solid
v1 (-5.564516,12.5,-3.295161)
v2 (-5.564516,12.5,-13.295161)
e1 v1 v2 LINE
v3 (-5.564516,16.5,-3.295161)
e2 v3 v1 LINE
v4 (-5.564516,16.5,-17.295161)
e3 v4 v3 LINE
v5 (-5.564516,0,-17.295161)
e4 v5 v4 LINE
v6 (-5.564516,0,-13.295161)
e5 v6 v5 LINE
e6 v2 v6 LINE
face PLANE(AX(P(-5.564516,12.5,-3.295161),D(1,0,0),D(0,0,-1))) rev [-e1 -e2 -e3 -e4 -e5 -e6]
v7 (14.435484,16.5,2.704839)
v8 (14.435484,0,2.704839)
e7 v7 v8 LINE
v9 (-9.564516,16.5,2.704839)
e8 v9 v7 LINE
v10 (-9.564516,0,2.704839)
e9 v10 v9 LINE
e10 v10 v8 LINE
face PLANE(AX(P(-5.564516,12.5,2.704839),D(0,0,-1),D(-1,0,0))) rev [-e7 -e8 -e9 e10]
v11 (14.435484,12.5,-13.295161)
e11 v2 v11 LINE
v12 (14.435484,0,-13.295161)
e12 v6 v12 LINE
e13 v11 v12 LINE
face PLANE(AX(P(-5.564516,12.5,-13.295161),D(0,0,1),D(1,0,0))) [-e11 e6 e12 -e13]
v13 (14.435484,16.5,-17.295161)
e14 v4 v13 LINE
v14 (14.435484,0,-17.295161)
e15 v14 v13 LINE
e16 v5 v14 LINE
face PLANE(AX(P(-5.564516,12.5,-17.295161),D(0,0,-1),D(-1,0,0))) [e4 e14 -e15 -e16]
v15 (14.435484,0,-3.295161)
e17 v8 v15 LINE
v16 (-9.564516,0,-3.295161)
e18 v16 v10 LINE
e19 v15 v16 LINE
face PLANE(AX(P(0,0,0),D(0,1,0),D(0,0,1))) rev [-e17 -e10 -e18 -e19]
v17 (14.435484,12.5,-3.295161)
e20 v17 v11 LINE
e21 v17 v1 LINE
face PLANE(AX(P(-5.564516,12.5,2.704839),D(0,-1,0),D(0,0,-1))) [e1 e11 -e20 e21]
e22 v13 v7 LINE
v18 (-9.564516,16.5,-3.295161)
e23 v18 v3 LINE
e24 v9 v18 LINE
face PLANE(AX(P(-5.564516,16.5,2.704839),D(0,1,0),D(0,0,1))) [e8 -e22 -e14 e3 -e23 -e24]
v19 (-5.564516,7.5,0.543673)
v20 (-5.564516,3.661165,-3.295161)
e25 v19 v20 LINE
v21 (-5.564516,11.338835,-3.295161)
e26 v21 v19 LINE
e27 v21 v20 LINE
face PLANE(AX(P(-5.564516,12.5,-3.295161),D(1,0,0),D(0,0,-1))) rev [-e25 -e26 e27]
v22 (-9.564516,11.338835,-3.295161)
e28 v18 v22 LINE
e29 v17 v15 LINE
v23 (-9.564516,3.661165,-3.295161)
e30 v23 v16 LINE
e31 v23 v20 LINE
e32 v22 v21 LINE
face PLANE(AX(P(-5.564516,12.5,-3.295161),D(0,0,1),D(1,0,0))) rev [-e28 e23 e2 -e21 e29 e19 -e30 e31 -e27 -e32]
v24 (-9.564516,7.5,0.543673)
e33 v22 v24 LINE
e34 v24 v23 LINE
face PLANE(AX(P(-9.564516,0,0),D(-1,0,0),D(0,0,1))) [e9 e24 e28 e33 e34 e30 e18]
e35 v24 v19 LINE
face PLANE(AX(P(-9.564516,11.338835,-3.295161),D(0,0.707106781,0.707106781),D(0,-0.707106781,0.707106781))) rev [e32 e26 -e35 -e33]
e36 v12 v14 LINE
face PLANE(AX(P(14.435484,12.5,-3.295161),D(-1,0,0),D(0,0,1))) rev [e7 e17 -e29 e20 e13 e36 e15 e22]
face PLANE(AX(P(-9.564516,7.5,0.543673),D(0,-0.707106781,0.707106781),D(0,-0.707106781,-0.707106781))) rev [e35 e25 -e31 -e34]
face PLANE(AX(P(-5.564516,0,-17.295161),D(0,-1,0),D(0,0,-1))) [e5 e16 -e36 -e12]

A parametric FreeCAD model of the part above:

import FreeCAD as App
import Part
import Sketcher

V = App.Vector

doc = App.newDocument("Part")
body = doc.addObject("PartDesign::Body", "Body")

# Sketch on XZ plane
sketch1 = body.newObject("Sketcher::SketchObject", "Sketch")
sketch1.AttachmentSupport = (doc.getObject("XZ_Plane"), [""])
sketch1.MapMode = "FlatFace"
sketch1.addGeometry(Part.LineSegment(V(14, -3, 0), V(-6, -3, 0)), False)
sketch1.addGeometry(Part.LineSegment(V(-6, -3, 0), V(-6, 3, 0)), False)
sketch1.addGeometry(Part.LineSegment(V(-6, 3, 0), V(14, 3, 0)), False)
sketch1.addGeometry(Part.LineSegment(V(14, 3, 0), V(14, -3, 0)), False)
sketch1.addConstraint(Sketcher.Constraint("Coincident", 0, 2, 1, 1))
sketch1.addConstraint(Sketcher.Constraint("Coincident", 1, 2, 2, 1))
sketch1.addConstraint(Sketcher.Constraint("Coincident", 2, 2, 3, 1))
sketch1.addConstraint(Sketcher.Constraint("Coincident", 3, 2, 0, 1))
sketch1.addConstraint(Sketcher.Constraint("Horizontal", 0))
sketch1.addConstraint(Sketcher.Constraint("Vertical", 1))
sketch1.addConstraint(Sketcher.Constraint("Horizontal", 2))
sketch1.addConstraint(Sketcher.Constraint("Vertical", 3))
sketch1.addConstraint(Sketcher.Constraint("DistanceX", 0, 2, 0, 1, 20.0))
sketch1.addConstraint(Sketcher.Constraint("DistanceY", 1, 1, 1, 2, 6.0))
sketch1.addConstraint(Sketcher.Constraint("DistanceY", 0, 2, -1, 1, 3.295161))
sketch1.addConstraint(Sketcher.Constraint("DistanceX", 0, 2, -1, 1, 5.564516))
pad1 = body.newObject("PartDesign::Pad", "Pad")
pad1.Profile = sketch1
pad1.Length = 12.5
pad1.Reversed = True

# Sketch on YZ plane
sketch2 = body.newObject("Sketcher::SketchObject", "Sketch001")
sketch2.AttachmentSupport = (doc.getObject("YZ_Plane"), [""])
sketch2.MapMode = "FlatFace"
sketch2.AttachmentOffset = App.Placement(V(0, 0, 14.435484), App.Rotation())
sketch2.addGeometry(Part.LineSegment(V(12.5, 2.7, 0), V(12.5, -13.3, 0)), False)
sketch2.addGeometry(Part.LineSegment(V(12.5, -13.3, 0), V(0, -13.3, 0)), False)
sketch2.addGeometry(Part.LineSegment(V(0, -13.3, 0), V(0, -17.3, 0)), False)
sketch2.addGeometry(Part.LineSegment(V(0, -17.3, 0), V(16.5, -17.3, 0)), False)
sketch2.addGeometry(Part.LineSegment(V(16.5, -17.3, 0), V(16.5, 2.7, 0)), False)
sketch2.addGeometry(Part.LineSegment(V(16.5, 2.7, 0), V(12.5, 2.7, 0)), False)
sketch2.addConstraint(Sketcher.Constraint("Coincident", 0, 2, 1, 1))
sketch2.addConstraint(Sketcher.Constraint("Coincident", 1, 2, 2, 1))
sketch2.addConstraint(Sketcher.Constraint("Coincident", 2, 2, 3, 1))
sketch2.addConstraint(Sketcher.Constraint("Coincident", 3, 2, 4, 1))
sketch2.addConstraint(Sketcher.Constraint("Coincident", 4, 2, 5, 1))
sketch2.addConstraint(Sketcher.Constraint("Coincident", 5, 2, 0, 1))
sketch2.addConstraint(Sketcher.Constraint("Vertical", 0))
sketch2.addConstraint(Sketcher.Constraint("Horizontal", 1))
sketch2.addConstraint(Sketcher.Constraint("Vertical", 2))
sketch2.addConstraint(Sketcher.Constraint("Horizontal", 3))
sketch2.addConstraint(Sketcher.Constraint("Vertical", 4))
sketch2.addConstraint(Sketcher.Constraint("Horizontal", 5))
sketch2.addConstraint(Sketcher.Constraint("PointOnObject", 1, 2, -2))
sketch2.addConstraint(Sketcher.Constraint("Equal", 5, 2))
sketch2.addConstraint(Sketcher.Constraint("DistanceX", 5, 2, 5, 1, 4.0))
sketch2.addConstraint(Sketcher.Constraint("DistanceY", 0, 2, 0, 1, 16.0))
sketch2.addConstraint(Sketcher.Constraint("DistanceX", 1, 2, 1, 1, 12.5))
sketch2.addConstraint(Sketcher.Constraint("DistanceY", 0, 2, -1, 1, 13.295161))
pad2 = body.newObject("PartDesign::Pad", "Pad001")
pad2.Profile = sketch2
pad2.Length = 20
pad2.Reversed = True

# Sketch on YZ plane
sketch3 = body.newObject("Sketcher::SketchObject", "Sketch002")
sketch3.AttachmentSupport = (doc.getObject("YZ_Plane"), [""])
sketch3.MapMode = "FlatFace"
sketch3.AttachmentOffset = App.Placement(V(0, 0, -5.564516), App.Rotation())
sketch3.addGeometry(Part.LineSegment(V(0, -3.3, 0), V(0, 2.7, 0)), False)
sketch3.addGeometry(Part.LineSegment(V(0, 2.7, 0), V(16.5, 2.7, 0)), False)
sketch3.addGeometry(Part.LineSegment(V(16.5, 2.7, 0), V(16.5, -3.3, 0)), False)
sketch3.addGeometry(Part.LineSegment(V(16.5, -3.3, 0), V(11.3, -3.3, 0)), False)
sketch3.addGeometry(Part.LineSegment(V(11.3, -3.3, 0), V(7.5, 0.5, 0)), False)
sketch3.addGeometry(Part.LineSegment(V(7.5, 0.5, 0), V(3.7, -3.3, 0)), False)
sketch3.addGeometry(Part.LineSegment(V(3.7, -3.3, 0), V(0, -3.3, 0)), False)
sketch3.addConstraint(Sketcher.Constraint("Coincident", 0, 2, 1, 1))
sketch3.addConstraint(Sketcher.Constraint("Coincident", 1, 2, 2, 1))
sketch3.addConstraint(Sketcher.Constraint("Coincident", 2, 2, 3, 1))
sketch3.addConstraint(Sketcher.Constraint("Coincident", 3, 2, 4, 1))
sketch3.addConstraint(Sketcher.Constraint("Coincident", 4, 2, 5, 1))
sketch3.addConstraint(Sketcher.Constraint("Coincident", 5, 2, 6, 1))
sketch3.addConstraint(Sketcher.Constraint("Coincident", 6, 2, 0, 1))
sketch3.addConstraint(Sketcher.Constraint("Vertical", 0))
sketch3.addConstraint(Sketcher.Constraint("Horizontal", 1))
sketch3.addConstraint(Sketcher.Constraint("Vertical", 2))
sketch3.addConstraint(Sketcher.Constraint("Horizontal", 3))
sketch3.addConstraint(Sketcher.Constraint("Horizontal", 6))
sketch3.addConstraint(Sketcher.Constraint("PointOnObject", 0, 2, -2))
sketch3.addConstraint(Sketcher.Constraint("Perpendicular", 4, 5))
sketch3.addConstraint(Sketcher.Constraint("Horizontal", 3, 2, 5, 2))
sketch3.addConstraint(Sketcher.Constraint("Equal", 4, 5))
sketch3.addConstraint(Sketcher.Constraint("DistanceY", 0, 1, 0, 2, 6.0))
sketch3.addConstraint(Sketcher.Constraint("DistanceX", 1, 1, 1, 2, 16.5))
sketch3.addConstraint(Sketcher.Constraint("DistanceX", 4, 2, 1, 2, 9.0))
sketch3.addConstraint(Sketcher.Constraint("DistanceX", 3, 2, 3, 1, 5.161165))
sketch3.addConstraint(Sketcher.Constraint("DistanceY", -1, 1, 0, 2, 2.704839))
pad3 = body.newObject("PartDesign::Pad", "Pad002")
pad3.Profile = sketch3
pad3.Length = 4
pad3.Reversed = True

doc.recompute()
